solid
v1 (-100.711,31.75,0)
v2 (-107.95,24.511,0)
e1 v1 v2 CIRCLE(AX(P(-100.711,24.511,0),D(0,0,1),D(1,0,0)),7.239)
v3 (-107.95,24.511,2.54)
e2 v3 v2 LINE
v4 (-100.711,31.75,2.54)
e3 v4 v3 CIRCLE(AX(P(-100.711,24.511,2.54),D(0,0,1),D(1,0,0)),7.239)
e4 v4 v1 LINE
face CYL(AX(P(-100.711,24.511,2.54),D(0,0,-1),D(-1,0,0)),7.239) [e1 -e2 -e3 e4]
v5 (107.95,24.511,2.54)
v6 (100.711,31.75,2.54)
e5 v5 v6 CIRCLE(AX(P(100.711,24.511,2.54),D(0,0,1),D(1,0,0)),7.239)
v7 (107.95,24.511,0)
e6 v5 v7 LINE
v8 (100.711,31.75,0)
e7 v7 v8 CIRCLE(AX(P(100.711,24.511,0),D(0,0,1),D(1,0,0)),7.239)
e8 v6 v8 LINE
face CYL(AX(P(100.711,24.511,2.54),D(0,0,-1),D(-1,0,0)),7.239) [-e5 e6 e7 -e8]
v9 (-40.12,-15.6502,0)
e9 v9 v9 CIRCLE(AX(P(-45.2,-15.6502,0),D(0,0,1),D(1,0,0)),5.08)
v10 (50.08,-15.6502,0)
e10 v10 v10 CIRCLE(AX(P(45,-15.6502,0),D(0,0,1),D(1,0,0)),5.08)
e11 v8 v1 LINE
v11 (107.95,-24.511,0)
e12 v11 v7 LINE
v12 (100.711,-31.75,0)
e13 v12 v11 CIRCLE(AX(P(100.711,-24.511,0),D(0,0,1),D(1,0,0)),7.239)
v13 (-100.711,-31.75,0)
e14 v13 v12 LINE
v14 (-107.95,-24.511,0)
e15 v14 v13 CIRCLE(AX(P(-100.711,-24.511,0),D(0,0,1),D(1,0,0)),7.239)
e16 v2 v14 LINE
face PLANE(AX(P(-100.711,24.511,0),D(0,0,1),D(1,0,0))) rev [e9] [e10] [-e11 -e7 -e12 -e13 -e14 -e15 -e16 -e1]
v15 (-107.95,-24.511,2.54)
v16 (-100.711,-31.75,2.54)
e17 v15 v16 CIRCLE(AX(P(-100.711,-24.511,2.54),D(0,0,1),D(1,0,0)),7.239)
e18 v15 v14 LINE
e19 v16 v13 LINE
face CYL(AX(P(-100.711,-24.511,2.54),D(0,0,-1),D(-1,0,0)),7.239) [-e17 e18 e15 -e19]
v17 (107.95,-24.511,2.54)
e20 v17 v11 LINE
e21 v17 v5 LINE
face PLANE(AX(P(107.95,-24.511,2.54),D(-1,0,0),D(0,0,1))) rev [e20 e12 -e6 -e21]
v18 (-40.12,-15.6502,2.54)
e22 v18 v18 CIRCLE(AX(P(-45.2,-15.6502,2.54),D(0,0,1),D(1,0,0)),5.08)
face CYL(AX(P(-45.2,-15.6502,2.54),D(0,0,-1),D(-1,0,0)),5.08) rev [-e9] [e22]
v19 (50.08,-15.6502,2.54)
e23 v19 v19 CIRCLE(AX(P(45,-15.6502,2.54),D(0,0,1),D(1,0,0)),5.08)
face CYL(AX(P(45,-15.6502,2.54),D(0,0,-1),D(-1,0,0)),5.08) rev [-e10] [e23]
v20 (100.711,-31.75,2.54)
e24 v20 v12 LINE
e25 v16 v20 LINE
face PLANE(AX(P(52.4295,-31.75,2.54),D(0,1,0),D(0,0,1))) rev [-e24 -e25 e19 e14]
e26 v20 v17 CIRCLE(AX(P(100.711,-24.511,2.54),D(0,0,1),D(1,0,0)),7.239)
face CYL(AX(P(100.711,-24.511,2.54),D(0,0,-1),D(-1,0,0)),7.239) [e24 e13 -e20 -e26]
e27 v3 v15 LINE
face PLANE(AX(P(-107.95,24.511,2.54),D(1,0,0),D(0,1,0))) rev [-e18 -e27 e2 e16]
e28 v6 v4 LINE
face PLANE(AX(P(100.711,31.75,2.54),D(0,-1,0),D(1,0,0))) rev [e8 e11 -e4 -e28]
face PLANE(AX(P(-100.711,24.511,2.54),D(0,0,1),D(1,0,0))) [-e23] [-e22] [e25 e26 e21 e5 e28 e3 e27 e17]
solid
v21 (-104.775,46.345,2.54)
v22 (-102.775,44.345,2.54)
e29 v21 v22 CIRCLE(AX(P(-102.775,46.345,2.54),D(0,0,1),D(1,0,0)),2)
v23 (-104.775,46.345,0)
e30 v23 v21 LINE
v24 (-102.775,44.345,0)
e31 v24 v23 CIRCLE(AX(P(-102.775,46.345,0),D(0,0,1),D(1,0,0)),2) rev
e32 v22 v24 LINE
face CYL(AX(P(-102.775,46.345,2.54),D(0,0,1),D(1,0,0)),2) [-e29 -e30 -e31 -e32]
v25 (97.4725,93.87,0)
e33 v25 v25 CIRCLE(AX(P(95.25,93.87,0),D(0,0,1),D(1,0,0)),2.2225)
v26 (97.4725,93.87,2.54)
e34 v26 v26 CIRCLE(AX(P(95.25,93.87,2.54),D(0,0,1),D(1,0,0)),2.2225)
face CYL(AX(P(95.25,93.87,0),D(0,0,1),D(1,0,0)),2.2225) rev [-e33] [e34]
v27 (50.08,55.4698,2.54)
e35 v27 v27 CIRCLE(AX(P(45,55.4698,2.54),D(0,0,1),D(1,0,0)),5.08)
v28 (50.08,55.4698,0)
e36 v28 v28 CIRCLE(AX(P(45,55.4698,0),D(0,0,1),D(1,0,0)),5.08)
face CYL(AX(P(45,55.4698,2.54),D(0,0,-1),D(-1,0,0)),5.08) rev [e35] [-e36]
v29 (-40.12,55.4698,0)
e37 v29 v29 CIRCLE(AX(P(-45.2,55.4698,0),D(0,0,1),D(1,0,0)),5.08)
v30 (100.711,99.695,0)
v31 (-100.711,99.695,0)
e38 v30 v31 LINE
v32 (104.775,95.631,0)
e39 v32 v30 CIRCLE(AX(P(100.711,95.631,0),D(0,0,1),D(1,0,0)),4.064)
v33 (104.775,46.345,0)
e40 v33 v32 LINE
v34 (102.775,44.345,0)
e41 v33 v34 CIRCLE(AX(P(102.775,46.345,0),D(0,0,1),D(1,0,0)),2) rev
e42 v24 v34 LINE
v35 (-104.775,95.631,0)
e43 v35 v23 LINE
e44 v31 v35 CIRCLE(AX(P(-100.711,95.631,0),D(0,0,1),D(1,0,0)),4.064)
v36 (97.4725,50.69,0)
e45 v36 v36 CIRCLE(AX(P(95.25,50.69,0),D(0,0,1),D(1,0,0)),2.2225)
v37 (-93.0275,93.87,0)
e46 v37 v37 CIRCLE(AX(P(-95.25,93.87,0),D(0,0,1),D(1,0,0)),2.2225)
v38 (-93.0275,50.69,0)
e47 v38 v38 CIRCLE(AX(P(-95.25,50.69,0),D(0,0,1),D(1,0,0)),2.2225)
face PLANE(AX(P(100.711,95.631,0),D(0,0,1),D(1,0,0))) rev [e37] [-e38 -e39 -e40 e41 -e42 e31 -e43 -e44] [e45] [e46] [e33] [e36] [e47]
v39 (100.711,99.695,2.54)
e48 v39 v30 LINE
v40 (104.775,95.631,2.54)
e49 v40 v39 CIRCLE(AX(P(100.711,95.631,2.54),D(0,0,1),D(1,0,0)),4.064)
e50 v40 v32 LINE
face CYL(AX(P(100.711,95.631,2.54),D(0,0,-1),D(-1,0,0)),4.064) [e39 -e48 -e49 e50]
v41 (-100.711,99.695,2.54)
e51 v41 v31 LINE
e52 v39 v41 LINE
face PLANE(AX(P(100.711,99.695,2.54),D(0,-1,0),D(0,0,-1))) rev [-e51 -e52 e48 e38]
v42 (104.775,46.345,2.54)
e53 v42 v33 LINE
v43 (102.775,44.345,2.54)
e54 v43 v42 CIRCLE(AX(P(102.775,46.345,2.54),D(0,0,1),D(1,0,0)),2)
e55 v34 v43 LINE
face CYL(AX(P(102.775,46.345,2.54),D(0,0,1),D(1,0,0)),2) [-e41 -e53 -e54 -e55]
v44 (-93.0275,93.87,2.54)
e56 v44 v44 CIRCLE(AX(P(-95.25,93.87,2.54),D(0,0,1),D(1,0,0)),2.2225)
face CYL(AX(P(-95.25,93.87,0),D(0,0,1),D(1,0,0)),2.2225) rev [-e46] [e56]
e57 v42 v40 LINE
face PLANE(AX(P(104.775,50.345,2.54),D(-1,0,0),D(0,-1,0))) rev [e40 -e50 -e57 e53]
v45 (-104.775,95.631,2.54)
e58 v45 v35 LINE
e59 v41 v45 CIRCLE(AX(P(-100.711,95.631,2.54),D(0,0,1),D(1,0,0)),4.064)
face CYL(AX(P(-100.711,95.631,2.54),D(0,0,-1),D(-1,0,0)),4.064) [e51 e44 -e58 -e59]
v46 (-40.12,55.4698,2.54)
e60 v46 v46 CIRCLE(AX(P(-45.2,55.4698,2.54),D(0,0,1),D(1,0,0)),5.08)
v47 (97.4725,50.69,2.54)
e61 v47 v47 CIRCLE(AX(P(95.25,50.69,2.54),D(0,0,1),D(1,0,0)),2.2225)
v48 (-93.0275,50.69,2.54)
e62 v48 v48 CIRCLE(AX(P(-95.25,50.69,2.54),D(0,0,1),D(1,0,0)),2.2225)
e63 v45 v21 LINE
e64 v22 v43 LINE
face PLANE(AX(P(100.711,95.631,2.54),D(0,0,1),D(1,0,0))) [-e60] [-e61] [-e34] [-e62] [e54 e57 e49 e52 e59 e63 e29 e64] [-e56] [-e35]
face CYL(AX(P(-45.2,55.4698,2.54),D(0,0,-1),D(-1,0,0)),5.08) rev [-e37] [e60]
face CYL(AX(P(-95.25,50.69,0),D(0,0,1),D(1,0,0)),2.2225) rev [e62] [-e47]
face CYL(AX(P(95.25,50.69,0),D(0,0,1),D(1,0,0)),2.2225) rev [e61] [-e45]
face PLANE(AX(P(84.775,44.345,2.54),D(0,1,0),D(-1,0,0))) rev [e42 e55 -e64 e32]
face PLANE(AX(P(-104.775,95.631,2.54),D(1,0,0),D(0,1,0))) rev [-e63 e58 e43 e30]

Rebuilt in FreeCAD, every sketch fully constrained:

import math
import FreeCAD as App
import Part
import Sketcher
Q = App.Units.Quantity


def edges_at(feature, points):
    """Names of the edges that pass closest to the given points."""
    edges = feature.Shape.Edges
    near = lambda p: min(range(len(edges)), key=lambda i: edges[i].distToShape(Part.Vertex(*p))[0])
    return sorted({f"Edge{near(p) + 1}" for p in points})

doc = App.newDocument("Part")
params = doc.addObject("Spreadsheet::Sheet", "Params")
for row, (alias, value) in enumerate([
    ("sketch1_diameter", "0.4 in"),
    ("sketch1_radius", "0.285 in"),
    ("sketch1_width", "7.93 in"),
    ("sketch1_height", "1.93 in"),
    ("pad1_length", "0.1 in"),
    ("sketch2_diameter", "0.4 in"),
    ("sketch2_radius", "0.16 in"),
    ("sketch2_width", "7.93 in"),
    ("pad2_length", "0.1 in"),
    ("pad3_length", "0.1 in"),
    ("fillet_radius", "2 mm"),
    ("sketch4_diameter", "0.175 in"),
], start=1):
    params.set(f"A{row}", alias)
    params.set(f"B{row}", "=" + value)
    params.setAlias(f"B{row}", alias)

body = doc.addObject("PartDesign::Body", "Body")

# Sketch on XY plane
sketch1 = body.newObject("Sketcher::SketchObject", "Sketch")
sketch1.AttachmentSupport = (doc.getObject("XY_Plane"), [""])
sketch1.MapMode = "FlatFace"
sketch1.addGeometry([
    Part.ArcOfCircle(Part.Circle(App.Vector(101, -25, 0), App.Vector(0, 0, 1), 7), math.radians(-90), math.radians(0)),  # 0
    Part.LineSegment(App.Vector(108, -25, 0), App.Vector(108, 25, 0)),  # 1
    Part.ArcOfCircle(Part.Circle(App.Vector(101, 25, 0), App.Vector(0, 0, 1), 7), math.radians(0), math.radians(90)),  # 2
    Part.LineSegment(App.Vector(101, 32, 0), App.Vector(-101, 32, 0)),  # 3
    Part.ArcOfCircle(Part.Circle(App.Vector(-101, 25, 0), App.Vector(0, 0, 1), 7), math.radians(90), math.radians(180)),  # 4
    Part.LineSegment(App.Vector(-108, 25, 0), App.Vector(-108, -25, 0)),  # 5
    Part.ArcOfCircle(Part.Circle(App.Vector(-101, -25, 0), App.Vector(0, 0, 1), 7), math.radians(180), math.radians(270)),  # 6
    Part.LineSegment(App.Vector(-101, -32, 0), App.Vector(101, -32, 0)),  # 7
    Part.Circle(App.Vector(-45, -16, 0), App.Vector(0, 0, 1), 5),  # 8
    Part.Circle(App.Vector(45, -16, 0), App.Vector(0, 0, 1), 5),  # 9
], False)
sketch1.addConstraint([
    Sketcher.Constraint("Tangent", 0, 2, 1, 1),
    Sketcher.Constraint("Tangent", 1, 2, 2, 1),
    Sketcher.Constraint("Tangent", 2, 2, 3, 1),
    Sketcher.Constraint("Tangent", 3, 2, 4, 1),
    Sketcher.Constraint("Tangent", 4, 2, 5, 1),
    Sketcher.Constraint("Tangent", 5, 2, 6, 1),
    Sketcher.Constraint("Tangent", 6, 2, 7, 1),
    Sketcher.Constraint("Tangent", 7, 2, 0, 1),
    Sketcher.Constraint("Vertical", 1),
    Sketcher.Constraint("Horizontal", 3),
    Sketcher.Constraint("Vertical", 5),
    Sketcher.Constraint("Horizontal", 7),
    Sketcher.Constraint("Equal", 0, 2),
    Sketcher.Constraint("Equal", 2, 4),
    Sketcher.Constraint("Equal", 4, 6),
    Sketcher.Constraint("Equal", 8, 9),
    Sketcher.Constraint("Symmetric", 0, 3, 4, 3, -1, 1),
    Sketcher.Constraint("Horizontal", 8, 3, 9, 3),
    Sketcher.Constraint("Diameter", 8, Q("0.4 in")),
    Sketcher.Constraint("Radius", 0, Q("0.285 in")),
    Sketcher.Constraint("DistanceX", 3, 2, 3, 1, Q("7.93 in")),
    Sketcher.Constraint("DistanceY", 1, 1, 1, 2, Q("1.93 in")),
    Sketcher.Constraint("DistanceX", 8, 3, -1, 1, Q("45.2 mm")),
    Sketcher.Constraint("DistanceY", 8, 3, -1, 1, Q("15.6502 mm")),
    Sketcher.Constraint("DistanceX", -1, 1, 9, 3, Q("45 mm")),
])
sketch1.setExpression("Constraints[18]", "Params.sketch1_diameter")
sketch1.setExpression("Constraints[19]", "Params.sketch1_radius")
sketch1.setExpression("Constraints[20]", "Params.sketch1_width")
sketch1.setExpression("Constraints[21]", "Params.sketch1_height")
pad1 = body.newObject("PartDesign::Pad", "Pad")
pad1.Profile = sketch1
pad1.setExpression("Length", "Params.pad1_length")
body2 = doc.addObject("PartDesign::Body", "Body001")

# Sketch on XY plane
sketch2 = body2.newObject("Sketcher::SketchObject", "Sketch001")
sketch2.AttachmentSupport = (doc.getObject("XY_Plane001"), [""])
sketch2.MapMode = "FlatFace"
sketch2.addGeometry([
    Part.LineSegment(App.Vector(100.7, 99.7, 0), App.Vector(-100.7, 99.7, 0)),  # 0
    Part.ArcOfCircle(Part.Circle(App.Vector(-100.7, 95.6, 0), App.Vector(0, 0, 1), 4.1), math.radians(90), math.radians(180)),  # 1
    Part.LineSegment(App.Vector(-104.8, 95.6, 0), App.Vector(-104.8, 50.3, 0)),  # 2
    Part.LineSegment(App.Vector(-104.8, 50.3, 0), App.Vector(-84.8, 50.3, 0)),  # 3
    Part.LineSegment(App.Vector(-84.8, 50.3, 0), App.Vector(-84.8, 44.3, 0)),  # 4
    Part.LineSegment(App.Vector(-84.8, 44.3, 0), App.Vector(84.8, 44.3, 0)),  # 5
    Part.LineSegment(App.Vector(84.8, 44.3, 0), App.Vector(84.8, 50.3, 0)),  # 6
    Part.LineSegment(App.Vector(84.8, 50.3, 0), App.Vector(104.8, 50.3, 0)),  # 7
    Part.LineSegment(App.Vector(104.8, 50.3, 0), App.Vector(104.8, 95.6, 0)),  # 8
    Part.ArcOfCircle(Part.Circle(App.Vector(100.7, 95.6, 0), App.Vector(0, 0, 1), 4.1), math.radians(0), math.radians(90)),  # 9
    Part.Circle(App.Vector(-45.2, 55.5, 0), App.Vector(0, 0, 1), 5.1),  # 10
    Part.Circle(App.Vector(45, 55.5, 0), App.Vector(0, 0, 1), 5.1),  # 11
], False)
sketch2.addConstraint([
    Sketcher.Constraint("Tangent", 0, 2, 1, 1),
    Sketcher.Constraint("Tangent", 1, 2, 2, 1),
    Sketcher.Constraint("Coincident", 2, 2, 3, 1),
    Sketcher.Constraint("Coincident", 3, 2, 4, 1),
    Sketcher.Constraint("Coincident", 4, 2, 5, 1),
    Sketcher.Constraint("Coincident", 5, 2, 6, 1),
    Sketcher.Constraint("Coincident", 6, 2, 7, 1),
    Sketcher.Constraint("Coincident", 7, 2, 8, 1),
    Sketcher.Constraint("Tangent", 8, 2, 9, 1),
    Sketcher.Constraint("Tangent", 9, 2, 0, 1),
    Sketcher.Constraint("Horizontal", 0),
    Sketcher.Constraint("Vertical", 2),
    Sketcher.Constraint("Horizontal", 3),
    Sketcher.Constraint("Vertical", 4),
    Sketcher.Constraint("Horizontal", 5),
    Sketcher.Constraint("Vertical", 6),
    Sketcher.Constraint("Horizontal", 7),
    Sketcher.Constraint("Vertical", 8),
    Sketcher.Constraint("Equal", 1, 9),
    Sketcher.Constraint("Equal", 10, 11),
    Sketcher.Constraint("Symmetric", 3, 2, 6, 2, -2),
    Sketcher.Constraint("Horizontal", 10, 3, 11, 3),
    Sketcher.Constraint("Equal", 3, 7),
    Sketcher.Constraint("Diameter", 10, Q("0.4 in")),
    Sketcher.Constraint("Radius", 1, Q("0.16 in")),
    Sketcher.Constraint("DistanceX", 0, 2, 0, 1, Q("7.93 in")),
    Sketcher.Constraint("DistanceY", -1, 1, 1, 3, Q("3.765 in")),
    Sketcher.Constraint("DistanceX", 3, 1, 3, 2, Q("20 mm")),
    Sketcher.Constraint("DistanceY", 2, 2, 2, 1, Q("45.286 mm")),
    Sketcher.Constraint("DistanceY", 4, 2, 4, 1, Q("6 mm")),
    Sketcher.Constraint("DistanceX", 10, 3, -1, 1, Q("45.2 mm")),
    Sketcher.Constraint("DistanceY", -1, 1, 10, 3, Q("55.4698 mm")),
    Sketcher.Constraint("DistanceX", -1, 1, 11, 3, Q("45 mm")),
])
sketch2.setExpression("Constraints[23]", "Params.sketch2_diameter")
sketch2.setExpression("Constraints[24]", "Params.sketch2_radius")
sketch2.setExpression("Constraints[25]", "Params.sketch2_width")
pad2 = body2.newObject("PartDesign::Pad", "Pad001")
pad2.Profile = sketch2
pad2.setExpression("Length", "Params.pad2_length")

# Sketch on XY plane
sketch3 = body2.newObject("Sketcher::SketchObject", "Sketch002")
sketch3.AttachmentSupport = (doc.getObject("XY_Plane001"), [""])
sketch3.MapMode = "FlatFace"
sketch3.AttachmentOffset = App.Placement(App.Vector(0, 0, 0.1 * 25.4), App.Rotation())
sketch3.addGeometry([
    Part.LineSegment(App.Vector(-105, 50, 0), App.Vector(-105, 44, 0)),  # 0
    Part.LineSegment(App.Vector(-105, 44, 0), App.Vector(-85, 44, 0)),  # 1
    Part.LineSegment(App.Vector(-85, 44, 0), App.Vector(-85, 50, 0)),  # 2
    Part.LineSegment(App.Vector(-85, 50, 0), App.Vector(-105, 50, 0)),  # 3
    Part.LineSegment(App.Vector(85, 50, 0), App.Vector(85, 44, 0)),  # 4
    Part.LineSegment(App.Vector(85, 44, 0), App.Vector(105, 44, 0)),  # 5
    Part.LineSegment(App.Vector(105, 44, 0), App.Vector(105, 50, 0)),  # 6
    Part.LineSegment(App.Vector(105, 50, 0), App.Vector(85, 50, 0)),  # 7
], False)
sketch3.addConstraint([
    Sketcher.Constraint("Coincident", 0, 2, 1, 1),
    Sketcher.Constraint("Coincident", 1, 2, 2, 1),
    Sketcher.Constraint("Coincident", 2, 2, 3, 1),
    Sketcher.Constraint("Coincident", 3, 2, 0, 1),
    Sketcher.Constraint("Coincident", 4, 2, 5, 1),
    Sketcher.Constraint("Coincident", 5, 2, 6, 1),
    Sketcher.Constraint("Coincident", 6, 2, 7, 1),
    Sketcher.Constraint("Coincident", 7, 2, 4, 1),
    Sketcher.Constraint("Vertical", 0),
    Sketcher.Constraint("Horizontal", 1),
    Sketcher.Constraint("Vertical", 2),
    Sketcher.Constraint("Horizontal", 3),
    Sketcher.Constraint("Vertical", 4),
    Sketcher.Constraint("Horizontal", 5),
    Sketcher.Constraint("Vertical", 6),
    Sketcher.Constraint("Horizontal", 7),
    Sketcher.Constraint("Symmetric", 1, 2, 4, 2, -2),
    Sketcher.Constraint("Symmetric", 3, 2, 6, 2, -2),
    Sketcher.Constraint("DistanceX", 0, 2, 5, 2, Q("8.25 in")),
    Sketcher.Constraint("DistanceX", 1, 1, 1, 2, Q("20 mm")),
    Sketcher.Constraint("DistanceY", 0, 2, 0, 1, Q("6 mm")),
    Sketcher.Constraint("DistanceY", -1, 1, 0, 2, Q("44.345 mm")),
])
pad3 = body2.newObject("PartDesign::Pad", "Pad002")
pad3.Profile = sketch3
pad3.setExpression("Length", "Params.pad3_length")
pad3.Reversed = True
doc.recompute()

fillet = body2.newObject("PartDesign::Fillet", "Fillet")
fillet.Base = (pad3, edges_at(pad3, [(-104.775, 44.345, 1.27), (104.775, 44.345, 1.27)]))
fillet.setExpression("Radius", "Params.fillet_radius")

# Sketch on XY plane
sketch4 = body2.newObject("Sketcher::SketchObject", "Sketch003")
sketch4.AttachmentSupport = (doc.getObject("XY_Plane001"), [""])
sketch4.MapMode = "FlatFace"
sketch4.AttachmentOffset = App.Placement(App.Vector(0, 0, 0.1 * 25.4), App.Rotation())
sketch4.addGeometry([
    Part.Circle(App.Vector(95.2, 93.9, 0), App.Vector(0, 0, 1), 2.2),
    Part.Circle(App.Vector(95.2, 50.7, 0), App.Vector(0, 0, 1), 2.2),
    Part.Circle(App.Vector(-95.2, 50.7, 0), App.Vector(0, 0, 1), 2.2),
    Part.Circle(App.Vector(-95.2, 93.9, 0), App.Vector(0, 0, 1), 2.2),
], False)
sketch4.addConstraint([
    Sketcher.Constraint("Equal", 0, 1),
    Sketcher.Constraint("Equal", 1, 2),
    Sketcher.Constraint("Equal", 2, 3),
    Sketcher.Constraint("Symmetric", 1, 3, 2, 3, -2),
    Sketcher.Constraint("Symmetric", 0, 3, 3, 3, -2),
    Sketcher.Constraint("Vertical", 0, 3, 1, 3),
    Sketcher.Constraint("Diameter", 0, Q("0.175 in")),
    Sketcher.Constraint("DistanceY", 1, 3, 0, 3, Q("1.7 in")),
    Sketcher.Constraint("DistanceX", 2, 3, 1, 3, Q("7.5 in")),
    Sketcher.Constraint("DistanceY", -1, 1, 0, 3, Q("93.87 mm")),
])
sketch4.setExpression("Constraints[6]", "Params.sketch4_diameter")
pocket1 = body2.newObject("PartDesign::Pocket", "Pocket")
pocket1.Profile = sketch4
pocket1.Type = "ThroughAll"

doc.recompute()
